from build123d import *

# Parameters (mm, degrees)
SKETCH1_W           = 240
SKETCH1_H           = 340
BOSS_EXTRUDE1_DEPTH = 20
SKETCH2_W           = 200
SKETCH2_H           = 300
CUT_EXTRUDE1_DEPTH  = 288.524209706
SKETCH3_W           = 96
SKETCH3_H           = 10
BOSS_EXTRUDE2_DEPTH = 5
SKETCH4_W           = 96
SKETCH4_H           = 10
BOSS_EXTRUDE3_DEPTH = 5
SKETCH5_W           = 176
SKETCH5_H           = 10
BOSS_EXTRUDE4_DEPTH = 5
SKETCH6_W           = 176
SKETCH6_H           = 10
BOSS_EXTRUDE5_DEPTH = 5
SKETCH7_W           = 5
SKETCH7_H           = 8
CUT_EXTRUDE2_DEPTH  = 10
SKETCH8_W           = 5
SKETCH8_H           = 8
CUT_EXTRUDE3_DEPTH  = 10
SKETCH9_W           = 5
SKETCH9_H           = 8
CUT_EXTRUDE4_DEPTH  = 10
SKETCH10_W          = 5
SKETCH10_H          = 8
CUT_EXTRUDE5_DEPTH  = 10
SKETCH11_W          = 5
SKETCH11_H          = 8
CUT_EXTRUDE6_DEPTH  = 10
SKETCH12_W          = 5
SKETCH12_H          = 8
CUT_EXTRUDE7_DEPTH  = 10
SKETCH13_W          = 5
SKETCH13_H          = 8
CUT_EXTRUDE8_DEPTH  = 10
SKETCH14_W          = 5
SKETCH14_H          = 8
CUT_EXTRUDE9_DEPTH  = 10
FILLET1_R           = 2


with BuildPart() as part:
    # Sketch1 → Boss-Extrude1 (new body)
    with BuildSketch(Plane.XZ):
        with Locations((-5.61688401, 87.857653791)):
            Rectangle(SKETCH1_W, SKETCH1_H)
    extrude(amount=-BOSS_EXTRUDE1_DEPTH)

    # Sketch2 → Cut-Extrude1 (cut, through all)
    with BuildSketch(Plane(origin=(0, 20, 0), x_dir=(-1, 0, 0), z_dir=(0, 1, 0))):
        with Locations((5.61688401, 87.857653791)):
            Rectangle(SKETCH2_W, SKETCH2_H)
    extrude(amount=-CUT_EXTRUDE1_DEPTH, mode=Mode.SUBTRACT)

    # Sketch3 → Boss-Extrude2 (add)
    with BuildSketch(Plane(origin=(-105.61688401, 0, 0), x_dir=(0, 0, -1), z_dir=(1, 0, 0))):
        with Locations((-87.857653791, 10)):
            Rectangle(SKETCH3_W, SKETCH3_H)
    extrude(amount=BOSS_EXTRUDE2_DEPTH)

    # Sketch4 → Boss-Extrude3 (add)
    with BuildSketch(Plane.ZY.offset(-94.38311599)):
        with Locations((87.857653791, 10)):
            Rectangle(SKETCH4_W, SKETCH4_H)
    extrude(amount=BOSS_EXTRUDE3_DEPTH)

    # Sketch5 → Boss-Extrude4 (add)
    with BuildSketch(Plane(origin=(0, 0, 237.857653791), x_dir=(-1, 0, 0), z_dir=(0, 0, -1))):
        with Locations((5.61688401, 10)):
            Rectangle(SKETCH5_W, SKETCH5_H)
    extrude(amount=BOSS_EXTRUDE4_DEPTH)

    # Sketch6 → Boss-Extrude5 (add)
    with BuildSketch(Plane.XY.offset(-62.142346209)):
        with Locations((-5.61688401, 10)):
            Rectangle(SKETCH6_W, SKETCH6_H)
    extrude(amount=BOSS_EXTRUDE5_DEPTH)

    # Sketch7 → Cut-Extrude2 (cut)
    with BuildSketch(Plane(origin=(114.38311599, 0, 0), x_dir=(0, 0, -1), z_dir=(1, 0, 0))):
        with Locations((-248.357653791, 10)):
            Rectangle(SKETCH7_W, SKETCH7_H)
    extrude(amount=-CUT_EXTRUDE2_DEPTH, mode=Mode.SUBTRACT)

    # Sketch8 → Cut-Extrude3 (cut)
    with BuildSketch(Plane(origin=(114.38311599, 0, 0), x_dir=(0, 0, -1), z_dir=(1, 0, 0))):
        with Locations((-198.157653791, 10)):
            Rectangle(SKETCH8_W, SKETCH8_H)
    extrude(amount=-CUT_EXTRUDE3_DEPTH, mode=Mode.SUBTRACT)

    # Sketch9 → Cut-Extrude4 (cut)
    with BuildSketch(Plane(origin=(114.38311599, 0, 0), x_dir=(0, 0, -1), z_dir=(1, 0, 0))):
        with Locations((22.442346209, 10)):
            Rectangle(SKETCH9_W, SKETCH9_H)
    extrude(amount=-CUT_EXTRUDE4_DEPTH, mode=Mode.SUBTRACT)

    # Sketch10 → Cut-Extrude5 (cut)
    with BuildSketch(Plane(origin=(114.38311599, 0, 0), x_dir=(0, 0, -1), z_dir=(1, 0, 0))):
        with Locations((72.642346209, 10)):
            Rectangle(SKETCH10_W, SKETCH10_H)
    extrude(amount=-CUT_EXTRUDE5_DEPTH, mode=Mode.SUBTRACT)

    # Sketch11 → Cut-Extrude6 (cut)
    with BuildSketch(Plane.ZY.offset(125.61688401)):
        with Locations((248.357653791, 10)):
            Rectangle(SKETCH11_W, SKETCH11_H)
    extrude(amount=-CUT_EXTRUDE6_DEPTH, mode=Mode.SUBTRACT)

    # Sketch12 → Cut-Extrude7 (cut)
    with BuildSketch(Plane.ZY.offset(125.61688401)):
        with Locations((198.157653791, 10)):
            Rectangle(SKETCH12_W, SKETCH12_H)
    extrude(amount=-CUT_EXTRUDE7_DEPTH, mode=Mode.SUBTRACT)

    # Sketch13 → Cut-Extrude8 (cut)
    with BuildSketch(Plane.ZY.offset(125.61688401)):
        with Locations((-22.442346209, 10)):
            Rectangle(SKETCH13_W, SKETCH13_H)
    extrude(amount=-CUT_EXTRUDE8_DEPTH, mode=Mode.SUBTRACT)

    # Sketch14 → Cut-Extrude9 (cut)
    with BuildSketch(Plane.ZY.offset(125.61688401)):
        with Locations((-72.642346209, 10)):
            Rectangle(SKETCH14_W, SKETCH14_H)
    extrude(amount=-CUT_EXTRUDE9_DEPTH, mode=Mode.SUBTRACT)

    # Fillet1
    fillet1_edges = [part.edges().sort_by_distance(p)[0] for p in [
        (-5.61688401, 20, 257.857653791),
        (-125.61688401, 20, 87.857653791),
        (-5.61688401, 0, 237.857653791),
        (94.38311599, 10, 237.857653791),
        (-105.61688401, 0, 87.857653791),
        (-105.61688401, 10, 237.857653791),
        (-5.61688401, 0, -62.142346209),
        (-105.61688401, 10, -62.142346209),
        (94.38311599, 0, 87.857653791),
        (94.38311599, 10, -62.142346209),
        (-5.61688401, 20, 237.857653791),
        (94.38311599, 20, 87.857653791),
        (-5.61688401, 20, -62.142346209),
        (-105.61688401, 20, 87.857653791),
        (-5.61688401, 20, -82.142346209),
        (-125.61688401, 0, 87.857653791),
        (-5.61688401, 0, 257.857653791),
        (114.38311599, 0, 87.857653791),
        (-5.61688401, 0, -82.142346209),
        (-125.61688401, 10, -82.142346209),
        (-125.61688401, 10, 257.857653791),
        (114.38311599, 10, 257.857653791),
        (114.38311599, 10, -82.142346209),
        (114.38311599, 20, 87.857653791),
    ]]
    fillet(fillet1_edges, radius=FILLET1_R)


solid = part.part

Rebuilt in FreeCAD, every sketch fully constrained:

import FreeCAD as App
import Part
import Sketcher


def edges_at(feature, points):
    """Names of the edges that pass closest to the given points."""
    edges = feature.Shape.Edges
    near = lambda p: min(range(len(edges)), key=lambda i: edges[i].distToShape(Part.Vertex(*p))[0])
    return sorted({f"Edge{near(p) + 1}" for p in points})

doc = App.newDocument("Part")
body = doc.addObject("PartDesign::Body", "Body")

# Sketch on XZ plane
sketch1 = body.newObject("Sketcher::SketchObject", "Sketch")
sketch1.AttachmentSupport = (doc.getObject("XZ_Plane"), [""])
sketch1.MapMode = "FlatFace"
sketch1.addGeometry([
    Part.LineSegment(App.Vector(-126, 258, 0), App.Vector(-126, -82, 0)),
    Part.LineSegment(App.Vector(-126, -82, 0), App.Vector(114, -82, 0)),
    Part.LineSegment(App.Vector(114, -82, 0), App.Vector(114, 258, 0)),
    Part.LineSegment(App.Vector(114, 258, 0), App.Vector(-126, 258, 0)),
], False)
sketch1.addConstraint([
    Sketcher.Constraint("Coincident", 0, 2, 1, 1),
    Sketcher.Constraint("Coincident", 1, 2, 2, 1),
    Sketcher.Constraint("Coincident", 2, 2, 3, 1),
    Sketcher.Constraint("Coincident", 3, 2, 0, 1),
    Sketcher.Constraint("Vertical", 0),
    Sketcher.Constraint("Horizontal", 1),
    Sketcher.Constraint("Vertical", 2),
    Sketcher.Constraint("Horizontal", 3),
    Sketcher.Constraint("DistanceX", 1, 1, 1, 2, 240.0),
    Sketcher.Constraint("DistanceY", 0, 2, 0, 1, 340.0),
    Sketcher.Constraint("DistanceX", 0, 2, -1, 1, 125.616884),
    Sketcher.Constraint("DistanceY", 0, 2, -1, 1, 82.142346),
])
pad1 = body.newObject("PartDesign::Pad", "Pad")
pad1.Profile = sketch1
pad1.Length = 20
pad1.Reversed = True

# Sketch on XZ plane
sketch2 = body.newObject("Sketcher::SketchObject", "Sketch001")
sketch2.AttachmentSupport = (doc.getObject("XZ_Plane"), [""])
sketch2.MapMode = "FlatFace"
sketch2.AttachmentOffset = App.Placement(App.Vector(0, 0, -20), App.Rotation())
sketch2.addGeometry([
    Part.LineSegment(App.Vector(94, 238, 0), App.Vector(94, -62, 0)),
    Part.LineSegment(App.Vector(94, -62, 0), App.Vector(-106, -62, 0)),
    Part.LineSegment(App.Vector(-106, -62, 0), App.Vector(-106, 238, 0)),
    Part.LineSegment(App.Vector(-106, 238, 0), App.Vector(94, 238, 0)),
], False)
sketch2.addConstraint([
    Sketcher.Constraint("Coincident", 0, 2, 1, 1),
    Sketcher.Constraint("Coincident", 1, 2, 2, 1),
    Sketcher.Constraint("Coincident", 2, 2, 3, 1),
    Sketcher.Constraint("Coincident", 3, 2, 0, 1),
    Sketcher.Constraint("Vertical", 0),
    Sketcher.Constraint("Horizontal", 1),
    Sketcher.Constraint("Vertical", 2),
    Sketcher.Constraint("Horizontal", 3),
    Sketcher.Constraint("DistanceX", 1, 2, 1, 1, 200.0),
    Sketcher.Constraint("DistanceY", 0, 2, 0, 1, 300.0),
    Sketcher.Constraint("DistanceX", -1, 1, 0, 2, 94.383116),
    Sketcher.Constraint("DistanceY", 0, 2, -1, 1, 62.142346),
])
pocket1 = body.newObject("PartDesign::Pocket", "Pocket")
pocket1.Profile = sketch2
pocket1.Type = "ThroughAll"
pocket1.Reversed = True

# Sketch on YZ plane
sketch3 = body.newObject("Sketcher::SketchObject", "Sketch002")
sketch3.AttachmentSupport = (doc.getObject("YZ_Plane"), [""])
sketch3.MapMode = "FlatFace"
sketch3.AttachmentOffset = App.Placement(App.Vector(0, 0, -105.616884), App.Rotation())
sketch3.addGeometry([
    Part.LineSegment(App.Vector(15, 136, 0), App.Vector(5, 136, 0)),
    Part.LineSegment(App.Vector(5, 136, 0), App.Vector(5, 40, 0)),
    Part.LineSegment(App.Vector(5, 40, 0), App.Vector(15, 40, 0)),
    Part.LineSegment(App.Vector(15, 40, 0), App.Vector(15, 136, 0)),
], False)
sketch3.addConstraint([
    Sketcher.Constraint("Coincident", 0, 2, 1, 1),
    Sketcher.Constraint("Coincident", 1, 2, 2, 1),
    Sketcher.Constraint("Coincident", 2, 2, 3, 1),
    Sketcher.Constraint("Coincident", 3, 2, 0, 1),
    Sketcher.Constraint("Horizontal", 0),
    Sketcher.Constraint("Vertical", 1),
    Sketcher.Constraint("Horizontal", 2),
    Sketcher.Constraint("Vertical", 3),
    Sketcher.Constraint("DistanceX", 0, 2, 0, 1, 10.0),
    Sketcher.Constraint("DistanceY", 1, 2, 1, 1, 96.0),
    Sketcher.Constraint("DistanceX", -1, 1, 0, 2, 5.0),
    Sketcher.Constraint("DistanceY", -1, 1, 0, 2, 135.857654),
])
pad2 = body.newObject("PartDesign::Pad", "Pad001")
pad2.Profile = sketch3
pad2.Length = 5

# Sketch on YZ plane
sketch4 = body.newObject("Sketcher::SketchObject", "Sketch003")
sketch4.AttachmentSupport = (doc.getObject("YZ_Plane"), [""])
sketch4.MapMode = "FlatFace"
sketch4.AttachmentOffset = App.Placement(App.Vector(0, 0, 94.383116), App.Rotation())
sketch4.addGeometry([
    Part.LineSegment(App.Vector(15, 40, 0), App.Vector(5, 40, 0)),
    Part.LineSegment(App.Vector(5, 40, 0), App.Vector(5, 136, 0)),
    Part.LineSegment(App.Vector(5, 136, 0), App.Vector(15, 136, 0)),
    Part.LineSegment(App.Vector(15, 136, 0), App.Vector(15, 40, 0)),
], False)
sketch4.addConstraint([
    Sketcher.Constraint("Coincident", 0, 2, 1, 1),
    Sketcher.Constraint("Coincident", 1, 2, 2, 1),
    Sketcher.Constraint("Coincident", 2, 2, 3, 1),
    Sketcher.Constraint("Coincident", 3, 2, 0, 1),
    Sketcher.Constraint("Horizontal", 0),
    Sketcher.Constraint("Vertical", 1),
    Sketcher.Constraint("Horizontal", 2),
    Sketcher.Constraint("Vertical", 3),
    Sketcher.Constraint("DistanceX", 0, 2, 0, 1, 10.0),
    Sketcher.Constraint("DistanceY", 1, 1, 1, 2, 96.0),
    Sketcher.Constraint("DistanceX", -1, 1, 0, 2, 5.0),
    Sketcher.Constraint("DistanceY", -1, 1, 0, 2, 39.857654),
])
pad3 = body.newObject("PartDesign::Pad", "Pad002")
pad3.Profile = sketch4
pad3.Length = 5
pad3.Reversed = True

# Sketch on XY plane
sketch5 = body.newObject("Sketcher::SketchObject", "Sketch004")
sketch5.AttachmentSupport = (doc.getObject("XY_Plane"), [""])
sketch5.MapMode = "FlatFace"
sketch5.AttachmentOffset = App.Placement(App.Vector(0, 0, 237.857654), App.Rotation())
sketch5.addGeometry([
    Part.LineSegment(App.Vector(82, 15, 0), App.Vector(82, 5, 0)),
    Part.LineSegment(App.Vector(82, 5, 0), App.Vector(-94, 5, 0)),
    Part.LineSegment(App.Vector(-94, 5, 0), App.Vector(-94, 15, 0)),
    Part.LineSegment(App.Vector(-94, 15, 0), App.Vector(82, 15, 0)),
], False)
sketch5.addConstraint([
    Sketcher.Constraint("Coincident", 0, 2, 1, 1),
    Sketcher.Constraint("Coincident", 1, 2, 2, 1),
    Sketcher.Constraint("Coincident", 2, 2, 3, 1),
    Sketcher.Constraint("Coincident", 3, 2, 0, 1),
    Sketcher.Constraint("Vertical", 0),
    Sketcher.Constraint("Horizontal", 1),
    Sketcher.Constraint("Vertical", 2),
    Sketcher.Constraint("Horizontal", 3),
    Sketcher.Constraint("DistanceX", 1, 2, 1, 1, 176.0),
    Sketcher.Constraint("DistanceY", 0, 2, 0, 1, 10.0),
    Sketcher.Constraint("DistanceY", -1, 1, 0, 2, 5.0),
    Sketcher.Constraint("DistanceX", -1, 1, 0, 2, 82.383116),
])
pad4 = body.newObject("PartDesign::Pad", "Pad003")
pad4.Profile = sketch5
pad4.Length = 5
pad4.Reversed = True

# Sketch on XY plane
sketch6 = body.newObject("Sketcher::SketchObject", "Sketch005")
sketch6.AttachmentSupport = (doc.getObject("XY_Plane"), [""])
sketch6.MapMode = "FlatFace"
sketch6.AttachmentOffset = App.Placement(App.Vector(0, 0, -62.142346), App.Rotation())
sketch6.addGeometry([
    Part.LineSegment(App.Vector(-94, 15, 0), App.Vector(-94, 5, 0)),
    Part.LineSegment(App.Vector(-94, 5, 0), App.Vector(82, 5, 0)),
    Part.LineSegment(App.Vector(82, 5, 0), App.Vector(82, 15, 0)),
    Part.LineSegment(App.Vector(82, 15, 0), App.Vector(-94, 15, 0)),
], False)
sketch6.addConstraint([
    Sketcher.Constraint("Coincident", 0, 2, 1, 1),
    Sketcher.Constraint("Coincident", 1, 2, 2, 1),
    Sketcher.Constraint("Coincident", 2, 2, 3, 1),
    Sketcher.Constraint("Coincident", 3, 2, 0, 1),
    Sketcher.Constraint("Vertical", 0),
    Sketcher.Constraint("Horizontal", 1),
    Sketcher.Constraint("Vertical", 2),
    Sketcher.Constraint("Horizontal", 3),
    Sketcher.Constraint("DistanceX", 1, 1, 1, 2, 176.0),
    Sketcher.Constraint("DistanceY", 0, 2, 0, 1, 10.0),
    Sketcher.Constraint("DistanceY", -1, 1, 0, 2, 5.0),
    Sketcher.Constraint("DistanceX", 0, 2, -1, 1, 93.616884),
])
pad5 = body.newObject("PartDesign::Pad", "Pad004")
pad5.Profile = sketch6
pad5.Length = 5

# Sketch on YZ plane
sketch7 = body.newObject("Sketcher::SketchObject", "Sketch006")
sketch7.AttachmentSupport = (doc.getObject("YZ_Plane"), [""])
sketch7.MapMode = "FlatFace"
sketch7.AttachmentOffset = App.Placement(App.Vector(0, 0, 114.383116), App.Rotation())
sketch7.addGeometry([
    Part.LineSegment(App.Vector(14, 251, 0), App.Vector(6, 251, 0)),
    Part.LineSegment(App.Vector(6, 251, 0), App.Vector(6, 246, 0)),
    Part.LineSegment(App.Vector(6, 246, 0), App.Vector(14, 246, 0)),
    Part.LineSegment(App.Vector(14, 246, 0), App.Vector(14, 251, 0)),
], False)
sketch7.addConstraint([
    Sketcher.Constraint("Coincident", 0, 2, 1, 1),
    Sketcher.Constraint("Coincident", 1, 2, 2, 1),
    Sketcher.Constraint("Coincident", 2, 2, 3, 1),
    Sketcher.Constraint("Coincident", 3, 2, 0, 1),
    Sketcher.Constraint("Horizontal", 0),
    Sketcher.Constraint("Vertical", 1),
    Sketcher.Constraint("Horizontal", 2),
    Sketcher.Constraint("Vertical", 3),
    Sketcher.Constraint("DistanceX", 0, 2, 0, 1, 8.0),
    Sketcher.Constraint("DistanceY", 1, 2, 1, 1, 5.0),
    Sketcher.Constraint("DistanceX", -1, 1, 0, 2, 6.0),
    Sketcher.Constraint("DistanceY", -1, 1, 0, 2, 250.857654),
])
pocket2 = body.newObject("PartDesign::Pocket", "Pocket001")
pocket2.Profile = sketch7
pocket2.Length = 10

# Sketch on YZ plane
sketch8 = body.newObject("Sketcher::SketchObject", "Sketch007")
sketch8.AttachmentSupport = (doc.getObject("YZ_Plane"), [""])
sketch8.MapMode = "FlatFace"
sketch8.AttachmentOffset = App.Placement(App.Vector(0, 0, 114.383116), App.Rotation())
sketch8.addGeometry([
    Part.LineSegment(App.Vector(14, 201, 0), App.Vector(6, 201, 0)),
    Part.LineSegment(App.Vector(6, 201, 0), App.Vector(6, 196, 0)),
    Part.LineSegment(App.Vector(6, 196, 0), App.Vector(14, 196, 0)),
    Part.LineSegment(App.Vector(14, 196, 0), App.Vector(14, 201, 0)),
], False)
sketch8.addConstraint([
    Sketcher.Constraint("Coincident", 0, 2, 1, 1),
    Sketcher.Constraint("Coincident", 1, 2, 2, 1),
    Sketcher.Constraint("Coincident", 2, 2, 3, 1),
    Sketcher.Constraint("Coincident", 3, 2, 0, 1),
    Sketcher.Constraint("Horizontal", 0),
    Sketcher.Constraint("Vertical", 1),
    Sketcher.Constraint("Horizontal", 2),
    Sketcher.Constraint("Vertical", 3),
    Sketcher.Constraint("DistanceX", 0, 2, 0, 1, 8.0),
    Sketcher.Constraint("DistanceY", 1, 2, 1, 1, 5.0),
    Sketcher.Constraint("DistanceX", -1, 1, 0, 2, 6.0),
    Sketcher.Constraint("DistanceY", -1, 1, 0, 2, 200.657654),
])
pocket3 = body.newObject("PartDesign::Pocket", "Pocket002")
pocket3.Profile = sketch8
pocket3.Length = 10

# Sketch on YZ plane
sketch9 = body.newObject("Sketcher::SketchObject", "Sketch008")
sketch9.AttachmentSupport = (doc.getObject("YZ_Plane"), [""])
sketch9.MapMode = "FlatFace"
sketch9.AttachmentOffset = App.Placement(App.Vector(0, 0, 114.383116), App.Rotation())
sketch9.addGeometry([
    Part.LineSegment(App.Vector(14, -20, 0), App.Vector(6, -20, 0)),
    Part.LineSegment(App.Vector(6, -20, 0), App.Vector(6, -25, 0)),
    Part.LineSegment(App.Vector(6, -25, 0), App.Vector(14, -25, 0)),
    Part.LineSegment(App.Vector(14, -25, 0), App.Vector(14, -20, 0)),
], False)
sketch9.addConstraint([
    Sketcher.Constraint("Coincident", 0, 2, 1, 1),
    Sketcher.Constraint("Coincident", 1, 2, 2, 1),
    Sketcher.Constraint("Coincident", 2, 2, 3, 1),
    Sketcher.Constraint("Coincident", 3, 2, 0, 1),
    Sketcher.Constraint("Horizontal", 0),
    Sketcher.Constraint("Vertical", 1),
    Sketcher.Constraint("Horizontal", 2),
    Sketcher.Constraint("Vertical", 3),
    Sketcher.Constraint("DistanceX", 0, 2, 0, 1, 8.0),
    Sketcher.Constraint("DistanceY", 1, 2, 1, 1, 5.0),
    Sketcher.Constraint("DistanceX", -1, 1, 0, 2, 6.0),
    Sketcher.Constraint("DistanceY", 0, 2, -1, 1, 19.942346),
])
pocket4 = body.newObject("PartDesign::Pocket", "Pocket003")
pocket4.Profile = sketch9
pocket4.Length = 10

# Sketch on YZ plane
sketch10 = body.newObject("Sketcher::SketchObject", "Sketch009")
sketch10.AttachmentSupport = (doc.getObject("YZ_Plane"), [""])
sketch10.MapMode = "FlatFace"
sketch10.AttachmentOffset = App.Placement(App.Vector(0, 0, 114.383116), App.Rotation())
sketch10.addGeometry([
    Part.LineSegment(App.Vector(14, -70, 0), App.Vector(6, -70, 0)),
    Part.LineSegment(App.Vector(6, -70, 0), App.Vector(6, -75, 0)),
    Part.LineSegment(App.Vector(6, -75, 0), App.Vector(14, -75, 0)),
    Part.LineSegment(App.Vector(14, -75, 0), App.Vector(14, -70, 0)),
], False)
sketch10.addConstraint([
    Sketcher.Constraint("Coincident", 0, 2, 1, 1),
    Sketcher.Constraint("Coincident", 1, 2, 2, 1),
    Sketcher.Constraint("Coincident", 2, 2, 3, 1),
    Sketcher.Constraint("Coincident", 3, 2, 0, 1),
    Sketcher.Constraint("Horizontal", 0),
    Sketcher.Constraint("Vertical", 1),
    Sketcher.Constraint("Horizontal", 2),
    Sketcher.Constraint("Vertical", 3),
    Sketcher.Constraint("DistanceX", 0, 2, 0, 1, 8.0),
    Sketcher.Constraint("DistanceY", 1, 2, 1, 1, 5.0),
    Sketcher.Constraint("DistanceX", -1, 1, 0, 2, 6.0),
    Sketcher.Constraint("DistanceY", 0, 2, -1, 1, 70.142346),
])
pocket5 = body.newObject("PartDesign::Pocket", "Pocket004")
pocket5.Profile = sketch10
pocket5.Length = 10

# Sketch on YZ plane
sketch11 = body.newObject("Sketcher::SketchObject", "Sketch010")
sketch11.AttachmentSupport = (doc.getObject("YZ_Plane"), [""])
sketch11.MapMode = "FlatFace"
sketch11.AttachmentOffset = App.Placement(App.Vector(0, 0, -125.616884), App.Rotation())
sketch11.addGeometry([
    Part.LineSegment(App.Vector(14, 246, 0), App.Vector(6, 246, 0)),
    Part.LineSegment(App.Vector(6, 246, 0), App.Vector(6, 251, 0)),
    Part.LineSegment(App.Vector(6, 251, 0), App.Vector(14, 251, 0)),
    Part.LineSegment(App.Vector(14, 251, 0), App.Vector(14, 246, 0)),
], False)
sketch11.addConstraint([
    Sketcher.Constraint("Coincident", 0, 2, 1, 1),
    Sketcher.Constraint("Coincident", 1, 2, 2, 1),
    Sketcher.Constraint("Coincident", 2, 2, 3, 1),
    Sketcher.Constraint("Coincident", 3, 2, 0, 1),
    Sketcher.Constraint("Horizontal", 0),
    Sketcher.Constraint("Vertical", 1),
    Sketcher.Constraint("Horizontal", 2),
    Sketcher.Constraint("Vertical", 3),
    Sketcher.Constraint("DistanceX", 0, 2, 0, 1, 8.0),
    Sketcher.Constraint("DistanceY", 1, 1, 1, 2, 5.0),
    Sketcher.Constraint("DistanceX", -1, 1, 0, 2, 6.0),
    Sketcher.Constraint("DistanceY", -1, 1, 0, 2, 245.857654),
])
pocket6 = body.newObject("PartDesign::Pocket", "Pocket005")
pocket6.Profile = sketch11
pocket6.Length = 10
pocket6.Reversed = True

# Sketch on YZ plane
sketch12 = body.newObject("Sketcher::SketchObject", "Sketch011")
sketch12.AttachmentSupport = (doc.getObject("YZ_Plane"), [""])
sketch12.MapMode = "FlatFace"
sketch12.AttachmentOffset = App.Placement(App.Vector(0, 0, -125.616884), App.Rotation())
sketch12.addGeometry([
    Part.LineSegment(App.Vector(14, 196, 0), App.Vector(6, 196, 0)),
    Part.LineSegment(App.Vector(6, 196, 0), App.Vector(6, 201, 0)),
    Part.LineSegment(App.Vector(6, 201, 0), App.Vector(14, 201, 0)),
    Part.LineSegment(App.Vector(14, 201, 0), App.Vector(14, 196, 0)),
], False)
sketch12.addConstraint([
    Sketcher.Constraint("Coincident", 0, 2, 1, 1),
    Sketcher.Constraint("Coincident", 1, 2, 2, 1),
    Sketcher.Constraint("Coincident", 2, 2, 3, 1),
    Sketcher.Constraint("Coincident", 3, 2, 0, 1),
    Sketcher.Constraint("Horizontal", 0),
    Sketcher.Constraint("Vertical", 1),
    Sketcher.Constraint("Horizontal", 2),
    Sketcher.Constraint("Vertical", 3),
    Sketcher.Constraint("DistanceX", 0, 2, 0, 1, 8.0),
    Sketcher.Constraint("DistanceY", 1, 1, 1, 2, 5.0),
    Sketcher.Constraint("DistanceX", -1, 1, 0, 2, 6.0),
    Sketcher.Constraint("DistanceY", -1, 1, 0, 2, 195.657654),
])
pocket7 = body.newObject("PartDesign::Pocket", "Pocket006")
pocket7.Profile = sketch12
pocket7.Length = 10
pocket7.Reversed = True

# Sketch on YZ plane
sketch13 = body.newObject("Sketcher::SketchObject", "Sketch012")
sketch13.AttachmentSupport = (doc.getObject("YZ_Plane"), [""])
sketch13.MapMode = "FlatFace"
sketch13.AttachmentOffset = App.Placement(App.Vector(0, 0, -125.616884), App.Rotation())
sketch13.addGeometry([
    Part.LineSegment(App.Vector(14, -25, 0), App.Vector(6, -25, 0)),
    Part.LineSegment(App.Vector(6, -25, 0), App.Vector(6, -20, 0)),
    Part.LineSegment(App.Vector(6, -20, 0), App.Vector(14, -20, 0)),
    Part.LineSegment(App.Vector(14, -20, 0), App.Vector(14, -25, 0)),
], False)
sketch13.addConstraint([
    Sketcher.Constraint("Coincident", 0, 2, 1, 1),
    Sketcher.Constraint("Coincident", 1, 2, 2, 1),
    Sketcher.Constraint("Coincident", 2, 2, 3, 1),
    Sketcher.Constraint("Coincident", 3, 2, 0, 1),
    Sketcher.Constraint("Horizontal", 0),
    Sketcher.Constraint("Vertical", 1),
    Sketcher.Constraint("Horizontal", 2),
    Sketcher.Constraint("Vertical", 3),
    Sketcher.Constraint("DistanceX", 0, 2, 0, 1, 8.0),
    Sketcher.Constraint("DistanceY", 1, 1, 1, 2, 5.0),
    Sketcher.Constraint("DistanceX", -1, 1, 0, 2, 6.0),
    Sketcher.Constraint("DistanceY", 0, 2, -1, 1, 24.942346),
])
pocket8 = body.newObject("PartDesign::Pocket", "Pocket007")
pocket8.Profile = sketch13
pocket8.Length = 10
pocket8.Reversed = True

# Sketch on YZ plane
sketch14 = body.newObject("Sketcher::SketchObject", "Sketch013")
sketch14.AttachmentSupport = (doc.getObject("YZ_Plane"), [""])
sketch14.MapMode = "FlatFace"
sketch14.AttachmentOffset = App.Placement(App.Vector(0, 0, -125.616884), App.Rotation())
sketch14.addGeometry([
    Part.LineSegment(App.Vector(14, -75, 0), App.Vector(6, -75, 0)),
    Part.LineSegment(App.Vector(6, -75, 0), App.Vector(6, -70, 0)),
    Part.LineSegment(App.Vector(6, -70, 0), App.Vector(14, -70, 0)),
    Part.LineSegment(App.Vector(14, -70, 0), App.Vector(14, -75, 0)),
], False)
sketch14.addConstraint([
    Sketcher.Constraint("Coincident", 0, 2, 1, 1),
    Sketcher.Constraint("Coincident", 1, 2, 2, 1),
    Sketcher.Constraint("Coincident", 2, 2, 3, 1),
    Sketcher.Constraint("Coincident", 3, 2, 0, 1),
    Sketcher.Constraint("Horizontal", 0),
    Sketcher.Constraint("Vertical", 1),
    Sketcher.Constraint("Horizontal", 2),
    Sketcher.Constraint("Vertical", 3),
    Sketcher.Constraint("DistanceX", 0, 2, 0, 1, 8.0),
    Sketcher.Constraint("DistanceY", 1, 1, 1, 2, 5.0),
    Sketcher.Constraint("DistanceX", -1, 1, 0, 2, 6.0),
    Sketcher.Constraint("DistanceY", 0, 2, -1, 1, 75.142346),
])
pocket9 = body.newObject("PartDesign::Pocket", "Pocket008")
pocket9.Profile = sketch14
pocket9.Length = 10
pocket9.Reversed = True
doc.recompute()

fillet = body.newObject("PartDesign::Fillet", "Fillet")
fillet.Base = (pocket9, edges_at(pocket9, [
    (-5.617, 20, 257.858),
    (-125.617, 20, 87.858),
    (-5.617, 0, 237.858),
    (94.383, 10, 237.858),
    (-105.617, 0, 87.858),
    (-105.617, 10, 237.858),
    (-5.617, 0, -62.142),
    (-105.617, 10, -62.142),
    (94.383, 0, 87.858),
    (94.383, 10, -62.142),
    (-5.617, 20, 237.858),
    (94.383, 20, 87.858),
    (-5.617, 20, -62.142),
    (-105.617, 20, 87.858),
    (-5.617, 20, -82.142),
    (-125.617, 0, 87.858),
    (-5.617, 0, 257.858),
    (114.383, 0, 87.858),
    (-5.617, 0, -82.142),
    (-125.617, 10, -82.142),
    (-125.617, 10, 257.858),
    (114.383, 10, 257.858),
    (114.383, 10, -82.142),
    (114.383, 20, 87.858),
]))
fillet.Radius = 2

doc.recompute()
